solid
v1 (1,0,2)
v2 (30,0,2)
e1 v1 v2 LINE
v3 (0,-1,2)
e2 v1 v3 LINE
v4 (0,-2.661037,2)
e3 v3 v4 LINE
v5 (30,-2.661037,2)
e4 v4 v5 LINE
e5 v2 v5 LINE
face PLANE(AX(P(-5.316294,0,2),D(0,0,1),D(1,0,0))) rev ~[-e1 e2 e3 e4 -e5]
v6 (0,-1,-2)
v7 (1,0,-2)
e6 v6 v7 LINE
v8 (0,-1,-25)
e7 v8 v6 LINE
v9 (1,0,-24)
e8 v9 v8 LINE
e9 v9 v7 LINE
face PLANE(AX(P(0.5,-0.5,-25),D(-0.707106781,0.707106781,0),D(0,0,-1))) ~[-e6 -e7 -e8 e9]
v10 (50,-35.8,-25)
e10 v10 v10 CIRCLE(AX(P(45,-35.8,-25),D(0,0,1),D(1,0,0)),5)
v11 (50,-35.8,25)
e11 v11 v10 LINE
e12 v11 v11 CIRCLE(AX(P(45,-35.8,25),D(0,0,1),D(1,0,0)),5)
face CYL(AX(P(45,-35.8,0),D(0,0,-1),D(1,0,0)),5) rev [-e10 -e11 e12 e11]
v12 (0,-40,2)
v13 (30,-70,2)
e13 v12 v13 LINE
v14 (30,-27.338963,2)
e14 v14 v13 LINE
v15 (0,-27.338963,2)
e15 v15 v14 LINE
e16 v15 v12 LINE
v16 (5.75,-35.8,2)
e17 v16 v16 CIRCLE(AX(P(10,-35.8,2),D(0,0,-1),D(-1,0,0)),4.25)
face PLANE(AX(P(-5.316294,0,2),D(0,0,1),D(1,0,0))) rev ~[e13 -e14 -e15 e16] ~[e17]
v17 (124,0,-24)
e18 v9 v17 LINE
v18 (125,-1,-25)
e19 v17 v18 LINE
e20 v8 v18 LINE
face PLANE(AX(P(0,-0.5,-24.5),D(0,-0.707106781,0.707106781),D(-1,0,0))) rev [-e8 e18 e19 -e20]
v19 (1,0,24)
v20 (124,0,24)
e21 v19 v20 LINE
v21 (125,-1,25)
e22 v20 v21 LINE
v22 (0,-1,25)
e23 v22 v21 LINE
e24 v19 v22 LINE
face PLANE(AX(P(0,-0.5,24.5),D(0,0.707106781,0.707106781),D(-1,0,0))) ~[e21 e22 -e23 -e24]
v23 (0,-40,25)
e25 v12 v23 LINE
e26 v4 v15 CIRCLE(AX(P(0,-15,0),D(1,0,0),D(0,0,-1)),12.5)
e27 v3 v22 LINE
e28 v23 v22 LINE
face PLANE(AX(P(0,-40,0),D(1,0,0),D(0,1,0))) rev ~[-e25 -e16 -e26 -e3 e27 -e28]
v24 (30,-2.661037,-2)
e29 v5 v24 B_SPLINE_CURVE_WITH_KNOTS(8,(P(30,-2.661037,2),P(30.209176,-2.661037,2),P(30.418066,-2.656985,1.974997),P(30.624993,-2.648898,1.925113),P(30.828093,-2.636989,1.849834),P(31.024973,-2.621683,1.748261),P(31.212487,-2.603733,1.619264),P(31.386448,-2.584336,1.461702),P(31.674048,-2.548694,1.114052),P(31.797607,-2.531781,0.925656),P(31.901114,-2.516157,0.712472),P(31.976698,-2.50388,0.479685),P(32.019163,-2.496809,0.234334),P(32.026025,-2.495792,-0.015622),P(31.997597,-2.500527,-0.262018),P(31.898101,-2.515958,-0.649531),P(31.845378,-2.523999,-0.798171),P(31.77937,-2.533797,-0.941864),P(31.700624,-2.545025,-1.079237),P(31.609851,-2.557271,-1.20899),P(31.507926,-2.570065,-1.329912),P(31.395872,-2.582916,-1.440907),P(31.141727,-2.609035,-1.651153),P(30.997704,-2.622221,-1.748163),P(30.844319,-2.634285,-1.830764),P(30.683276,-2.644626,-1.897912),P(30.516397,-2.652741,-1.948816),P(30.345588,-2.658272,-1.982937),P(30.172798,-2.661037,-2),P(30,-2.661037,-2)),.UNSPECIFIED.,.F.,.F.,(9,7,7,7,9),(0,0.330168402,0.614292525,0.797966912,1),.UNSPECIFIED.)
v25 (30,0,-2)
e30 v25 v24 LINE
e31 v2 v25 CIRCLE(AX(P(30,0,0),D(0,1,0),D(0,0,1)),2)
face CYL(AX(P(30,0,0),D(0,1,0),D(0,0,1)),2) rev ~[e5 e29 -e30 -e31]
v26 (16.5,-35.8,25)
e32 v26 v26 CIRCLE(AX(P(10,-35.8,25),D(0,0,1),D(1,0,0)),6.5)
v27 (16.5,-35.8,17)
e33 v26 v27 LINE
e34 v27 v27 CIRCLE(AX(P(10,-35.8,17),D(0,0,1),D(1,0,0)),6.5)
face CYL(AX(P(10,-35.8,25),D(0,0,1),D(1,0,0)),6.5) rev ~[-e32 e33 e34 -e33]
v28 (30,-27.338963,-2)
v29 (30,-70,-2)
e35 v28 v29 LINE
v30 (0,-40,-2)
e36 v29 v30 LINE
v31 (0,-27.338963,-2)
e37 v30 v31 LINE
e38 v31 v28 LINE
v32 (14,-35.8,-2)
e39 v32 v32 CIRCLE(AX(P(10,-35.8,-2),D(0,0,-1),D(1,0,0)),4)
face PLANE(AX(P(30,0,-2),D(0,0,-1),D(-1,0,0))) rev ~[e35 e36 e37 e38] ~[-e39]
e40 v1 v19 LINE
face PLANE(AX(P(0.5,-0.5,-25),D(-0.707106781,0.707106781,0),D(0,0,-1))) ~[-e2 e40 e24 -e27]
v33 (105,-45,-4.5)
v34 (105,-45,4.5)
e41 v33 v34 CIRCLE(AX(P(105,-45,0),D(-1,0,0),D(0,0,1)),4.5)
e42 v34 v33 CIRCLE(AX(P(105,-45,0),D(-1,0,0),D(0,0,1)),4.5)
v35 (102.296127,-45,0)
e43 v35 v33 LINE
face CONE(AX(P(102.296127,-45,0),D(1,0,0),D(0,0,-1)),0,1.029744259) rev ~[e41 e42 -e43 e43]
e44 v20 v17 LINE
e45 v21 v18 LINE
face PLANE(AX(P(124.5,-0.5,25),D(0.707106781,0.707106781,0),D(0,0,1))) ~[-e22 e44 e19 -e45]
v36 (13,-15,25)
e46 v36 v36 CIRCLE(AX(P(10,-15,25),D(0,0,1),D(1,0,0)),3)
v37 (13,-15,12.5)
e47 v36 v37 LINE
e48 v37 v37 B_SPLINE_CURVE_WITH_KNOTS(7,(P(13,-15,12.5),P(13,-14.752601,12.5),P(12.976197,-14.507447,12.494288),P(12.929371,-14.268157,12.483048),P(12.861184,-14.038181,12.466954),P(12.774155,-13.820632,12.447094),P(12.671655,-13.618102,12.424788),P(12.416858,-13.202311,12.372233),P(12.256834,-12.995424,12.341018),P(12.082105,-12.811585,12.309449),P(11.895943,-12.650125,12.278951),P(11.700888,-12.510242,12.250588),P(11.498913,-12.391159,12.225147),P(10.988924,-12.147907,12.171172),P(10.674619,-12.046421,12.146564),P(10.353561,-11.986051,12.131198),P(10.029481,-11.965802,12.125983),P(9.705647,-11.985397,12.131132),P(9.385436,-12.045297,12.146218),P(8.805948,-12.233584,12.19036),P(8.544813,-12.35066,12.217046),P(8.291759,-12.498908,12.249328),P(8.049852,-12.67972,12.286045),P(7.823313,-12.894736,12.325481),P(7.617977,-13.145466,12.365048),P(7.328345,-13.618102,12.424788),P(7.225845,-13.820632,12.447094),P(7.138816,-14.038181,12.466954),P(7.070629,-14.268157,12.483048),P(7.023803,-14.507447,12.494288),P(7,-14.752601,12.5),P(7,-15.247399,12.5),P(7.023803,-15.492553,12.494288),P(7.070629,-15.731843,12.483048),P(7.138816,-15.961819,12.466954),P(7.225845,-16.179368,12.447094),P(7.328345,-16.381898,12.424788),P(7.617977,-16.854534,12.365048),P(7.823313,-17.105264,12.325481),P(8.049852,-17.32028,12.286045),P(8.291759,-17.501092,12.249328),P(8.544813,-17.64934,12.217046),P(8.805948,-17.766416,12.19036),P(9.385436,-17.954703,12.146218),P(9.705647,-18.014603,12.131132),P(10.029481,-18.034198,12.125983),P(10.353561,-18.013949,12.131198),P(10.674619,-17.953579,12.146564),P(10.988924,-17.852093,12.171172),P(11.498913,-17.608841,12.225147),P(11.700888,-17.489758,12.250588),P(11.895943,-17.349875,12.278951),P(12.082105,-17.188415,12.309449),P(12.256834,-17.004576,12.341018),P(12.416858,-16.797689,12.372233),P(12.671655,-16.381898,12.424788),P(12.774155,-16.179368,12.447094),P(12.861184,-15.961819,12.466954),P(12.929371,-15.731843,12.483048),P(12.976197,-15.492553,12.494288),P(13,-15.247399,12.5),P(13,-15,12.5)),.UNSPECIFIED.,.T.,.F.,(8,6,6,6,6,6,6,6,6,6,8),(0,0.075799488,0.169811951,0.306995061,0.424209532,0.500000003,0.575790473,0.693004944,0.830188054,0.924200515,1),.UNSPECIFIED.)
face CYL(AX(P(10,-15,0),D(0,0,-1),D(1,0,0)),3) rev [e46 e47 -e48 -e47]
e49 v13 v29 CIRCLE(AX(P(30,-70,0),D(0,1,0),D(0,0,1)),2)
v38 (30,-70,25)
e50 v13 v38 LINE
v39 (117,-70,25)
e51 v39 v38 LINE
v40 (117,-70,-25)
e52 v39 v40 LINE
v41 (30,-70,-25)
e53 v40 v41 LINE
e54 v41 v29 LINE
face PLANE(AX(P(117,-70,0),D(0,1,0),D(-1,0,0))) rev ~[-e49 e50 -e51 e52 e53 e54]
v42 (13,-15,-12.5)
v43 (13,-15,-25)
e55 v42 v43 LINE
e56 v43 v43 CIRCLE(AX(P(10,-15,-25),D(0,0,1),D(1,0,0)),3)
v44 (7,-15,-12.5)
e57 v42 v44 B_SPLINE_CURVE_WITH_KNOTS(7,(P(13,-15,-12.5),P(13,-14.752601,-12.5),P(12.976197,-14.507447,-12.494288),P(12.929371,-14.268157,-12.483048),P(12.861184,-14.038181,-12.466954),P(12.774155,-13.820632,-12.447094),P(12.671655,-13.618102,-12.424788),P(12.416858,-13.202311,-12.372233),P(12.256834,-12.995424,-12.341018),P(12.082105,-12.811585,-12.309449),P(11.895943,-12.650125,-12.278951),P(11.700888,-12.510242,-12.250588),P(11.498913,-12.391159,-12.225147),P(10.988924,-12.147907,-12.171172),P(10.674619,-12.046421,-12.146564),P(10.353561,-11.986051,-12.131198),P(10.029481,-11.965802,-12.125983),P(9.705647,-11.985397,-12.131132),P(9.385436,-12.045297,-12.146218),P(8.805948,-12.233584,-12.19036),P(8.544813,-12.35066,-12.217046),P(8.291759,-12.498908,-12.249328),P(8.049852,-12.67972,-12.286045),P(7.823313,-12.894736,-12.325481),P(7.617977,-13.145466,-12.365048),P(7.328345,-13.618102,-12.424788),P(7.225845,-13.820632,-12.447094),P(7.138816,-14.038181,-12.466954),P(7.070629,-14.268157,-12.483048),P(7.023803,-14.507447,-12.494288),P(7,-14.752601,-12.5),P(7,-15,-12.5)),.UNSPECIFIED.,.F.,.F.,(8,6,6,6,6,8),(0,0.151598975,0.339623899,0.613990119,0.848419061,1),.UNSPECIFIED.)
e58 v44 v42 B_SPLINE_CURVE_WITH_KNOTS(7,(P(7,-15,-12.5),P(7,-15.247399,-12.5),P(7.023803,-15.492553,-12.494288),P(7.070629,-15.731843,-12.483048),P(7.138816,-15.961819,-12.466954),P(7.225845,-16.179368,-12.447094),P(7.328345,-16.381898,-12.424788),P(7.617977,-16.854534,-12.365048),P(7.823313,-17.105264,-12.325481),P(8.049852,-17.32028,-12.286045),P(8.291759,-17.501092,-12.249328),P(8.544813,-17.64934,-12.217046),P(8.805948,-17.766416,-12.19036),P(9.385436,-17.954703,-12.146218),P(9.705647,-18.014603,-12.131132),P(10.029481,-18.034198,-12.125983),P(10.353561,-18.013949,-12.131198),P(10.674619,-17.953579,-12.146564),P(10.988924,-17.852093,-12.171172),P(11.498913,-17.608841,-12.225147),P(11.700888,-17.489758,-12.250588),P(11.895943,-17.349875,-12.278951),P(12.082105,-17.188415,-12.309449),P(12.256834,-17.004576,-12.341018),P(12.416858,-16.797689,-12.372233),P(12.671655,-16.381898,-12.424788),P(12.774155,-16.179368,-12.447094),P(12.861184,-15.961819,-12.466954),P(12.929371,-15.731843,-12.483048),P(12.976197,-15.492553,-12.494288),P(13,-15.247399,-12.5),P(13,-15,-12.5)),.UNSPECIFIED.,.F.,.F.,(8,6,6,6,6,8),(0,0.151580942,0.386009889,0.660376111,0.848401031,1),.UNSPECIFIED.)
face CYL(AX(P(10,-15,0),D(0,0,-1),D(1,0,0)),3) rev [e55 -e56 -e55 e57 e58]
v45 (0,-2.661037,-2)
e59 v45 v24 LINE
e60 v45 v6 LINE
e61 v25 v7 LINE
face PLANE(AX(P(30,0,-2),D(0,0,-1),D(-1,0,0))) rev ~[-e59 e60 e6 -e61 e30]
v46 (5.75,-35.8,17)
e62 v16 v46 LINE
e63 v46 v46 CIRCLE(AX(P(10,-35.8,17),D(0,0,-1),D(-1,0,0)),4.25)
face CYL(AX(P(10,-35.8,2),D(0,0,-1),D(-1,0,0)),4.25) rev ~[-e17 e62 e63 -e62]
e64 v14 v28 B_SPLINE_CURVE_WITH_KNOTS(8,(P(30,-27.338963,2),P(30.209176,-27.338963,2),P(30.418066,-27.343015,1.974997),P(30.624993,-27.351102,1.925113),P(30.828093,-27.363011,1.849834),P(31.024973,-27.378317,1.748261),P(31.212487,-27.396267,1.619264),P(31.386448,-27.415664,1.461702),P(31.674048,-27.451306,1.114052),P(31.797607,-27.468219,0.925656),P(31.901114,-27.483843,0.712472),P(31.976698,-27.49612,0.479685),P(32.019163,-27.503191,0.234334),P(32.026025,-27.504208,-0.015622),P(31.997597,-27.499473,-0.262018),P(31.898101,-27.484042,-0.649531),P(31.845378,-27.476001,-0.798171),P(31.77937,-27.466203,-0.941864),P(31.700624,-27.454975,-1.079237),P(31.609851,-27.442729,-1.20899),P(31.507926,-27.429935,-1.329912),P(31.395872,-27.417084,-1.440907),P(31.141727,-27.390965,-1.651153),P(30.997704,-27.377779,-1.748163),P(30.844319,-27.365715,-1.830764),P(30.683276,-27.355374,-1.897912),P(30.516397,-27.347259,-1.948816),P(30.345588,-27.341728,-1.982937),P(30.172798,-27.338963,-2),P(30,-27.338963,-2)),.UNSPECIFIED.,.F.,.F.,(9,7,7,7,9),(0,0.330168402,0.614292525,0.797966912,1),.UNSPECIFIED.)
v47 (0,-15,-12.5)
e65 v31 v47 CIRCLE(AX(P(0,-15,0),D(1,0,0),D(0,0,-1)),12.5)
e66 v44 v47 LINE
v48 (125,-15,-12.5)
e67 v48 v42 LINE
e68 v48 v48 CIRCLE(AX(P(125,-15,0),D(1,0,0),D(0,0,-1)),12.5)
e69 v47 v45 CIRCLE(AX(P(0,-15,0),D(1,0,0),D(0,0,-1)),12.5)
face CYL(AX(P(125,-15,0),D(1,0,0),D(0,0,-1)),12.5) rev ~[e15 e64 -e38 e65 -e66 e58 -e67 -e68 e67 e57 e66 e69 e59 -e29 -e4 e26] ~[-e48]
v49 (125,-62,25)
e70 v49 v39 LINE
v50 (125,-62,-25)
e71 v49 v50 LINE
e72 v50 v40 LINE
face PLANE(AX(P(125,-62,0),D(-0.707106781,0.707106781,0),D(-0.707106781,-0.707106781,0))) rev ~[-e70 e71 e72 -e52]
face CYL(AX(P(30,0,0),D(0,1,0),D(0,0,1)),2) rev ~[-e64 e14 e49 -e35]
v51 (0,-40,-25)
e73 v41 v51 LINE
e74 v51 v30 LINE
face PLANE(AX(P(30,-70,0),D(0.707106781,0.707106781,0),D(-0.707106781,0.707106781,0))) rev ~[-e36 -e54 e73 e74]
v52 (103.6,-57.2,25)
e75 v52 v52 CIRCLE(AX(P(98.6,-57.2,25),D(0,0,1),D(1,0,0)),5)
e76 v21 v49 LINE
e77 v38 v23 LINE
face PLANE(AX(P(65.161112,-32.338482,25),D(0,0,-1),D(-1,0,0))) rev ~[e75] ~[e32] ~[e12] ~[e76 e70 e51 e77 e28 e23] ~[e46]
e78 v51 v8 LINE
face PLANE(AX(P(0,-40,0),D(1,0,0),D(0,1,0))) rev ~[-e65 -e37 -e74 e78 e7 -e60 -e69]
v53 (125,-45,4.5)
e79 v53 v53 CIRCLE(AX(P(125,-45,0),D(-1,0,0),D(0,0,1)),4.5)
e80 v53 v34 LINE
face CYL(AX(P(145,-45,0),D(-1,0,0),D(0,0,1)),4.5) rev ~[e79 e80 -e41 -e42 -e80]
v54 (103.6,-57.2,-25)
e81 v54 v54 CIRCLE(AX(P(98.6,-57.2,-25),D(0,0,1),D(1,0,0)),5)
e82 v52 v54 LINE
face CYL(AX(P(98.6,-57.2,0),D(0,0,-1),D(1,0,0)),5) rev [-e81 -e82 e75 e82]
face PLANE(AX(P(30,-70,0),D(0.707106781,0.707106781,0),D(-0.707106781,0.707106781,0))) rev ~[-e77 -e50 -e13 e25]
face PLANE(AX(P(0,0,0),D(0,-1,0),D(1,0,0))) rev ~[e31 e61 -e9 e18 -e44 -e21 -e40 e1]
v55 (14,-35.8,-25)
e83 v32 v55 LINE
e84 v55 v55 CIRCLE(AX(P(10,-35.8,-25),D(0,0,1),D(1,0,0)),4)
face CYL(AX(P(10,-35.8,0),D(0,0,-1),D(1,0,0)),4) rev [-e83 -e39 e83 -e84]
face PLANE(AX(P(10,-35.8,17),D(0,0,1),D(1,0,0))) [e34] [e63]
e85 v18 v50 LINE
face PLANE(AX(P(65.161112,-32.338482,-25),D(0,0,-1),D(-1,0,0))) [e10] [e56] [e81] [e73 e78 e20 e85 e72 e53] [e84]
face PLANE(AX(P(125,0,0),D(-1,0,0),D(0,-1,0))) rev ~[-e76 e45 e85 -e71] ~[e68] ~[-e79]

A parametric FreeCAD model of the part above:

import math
import FreeCAD as App
import Part
import Sketcher

V = App.Vector
Q = App.Units.Quantity


def edges_at(feature, points):
    """Names of the edges that pass closest to the given points."""
    edges = feature.Shape.Edges
    near = lambda p: min(range(len(edges)), key=lambda i: edges[i].distToShape(Part.Vertex(*p))[0])
    return sorted({f"Edge{near(p) + 1}" for p in points})

doc = App.newDocument("Part")
body = doc.addObject("PartDesign::Body", "Body")

sketch1 = body.newObject("Sketcher::SketchObject", "Sketch")
sketch1.AttachmentSupport = (doc.getObject("XY_Plane"), [""])
sketch1.MapMode = "FlatFace"
sketch1.addGeometry([
    Part.LineSegment(V(125, 0, 0), V(0, 0, 0)),
    Part.LineSegment(V(0, 0, 0), V(0, -40, 0)),
    Part.LineSegment(V(0, -40, 0), V(30, -70, 0)),
    Part.LineSegment(V(30, -70, 0), V(117, -70, 0)),
    Part.LineSegment(V(117, -70, 0), V(125, -62, 0)),
    Part.LineSegment(V(125, -62, 0), V(125, 0, 0)),
    Part.Circle(V(98.6, -57.2, 0), V(0, 0, 1), 5),
    Part.Circle(V(45, -35.8, 0), V(0, 0, 1), 5),
    Part.Circle(V(10, -35.8, 0), V(0, 0, 1), 4),
    Part.Circle(V(10, -15, 0), V(0, 0, 1), 3),
], False)
sketch1.addConstraint([
    Sketcher.Constraint("Coincident", 0, 2, 1, 1),
    Sketcher.Constraint("Coincident", 1, 2, 2, 1),
    Sketcher.Constraint("Coincident", 2, 2, 3, 1),
    Sketcher.Constraint("Coincident", 3, 2, 4, 1),
    Sketcher.Constraint("Coincident", 4, 2, 5, 1),
    Sketcher.Constraint("Coincident", 5, 2, 0, 1),
    Sketcher.Constraint("Horizontal", 0),
    Sketcher.Constraint("Vertical", 1),
    Sketcher.Constraint("Horizontal", 3),
    Sketcher.Constraint("Vertical", 5),
    Sketcher.Constraint("Coincident", 0, 2, -1, 1),
    Sketcher.Constraint("Equal", 6, 7),
    Sketcher.Constraint("Perpendicular", 2, 4),
    Sketcher.Constraint("Horizontal", 7, 3, 8, 3),
    Sketcher.Constraint("Vertical", 8, 3, 9, 3),
    Sketcher.Constraint("Diameter", 6, Q("10 mm")),
    Sketcher.Constraint("Diameter", 8, Q("8 mm")),
    Sketcher.Constraint("Diameter", 9, Q("6 mm")),
    Sketcher.Constraint("DistanceX", 0, 2, 0, 1, Q("125 mm")),
    Sketcher.Constraint("DistanceX", 3, 1, 3, 2, Q("87 mm")),
    Sketcher.Constraint("DistanceY", 1, 2, 1, 1, Q("40 mm")),
    Sketcher.Constraint("DistanceY", 5, 1, 5, 2, Q("62 mm")),
    Sketcher.Constraint("Angle", 2, Q("-45 deg")),
    Sketcher.Constraint("DistanceX", -1, 1, 7, 3, Q("45 mm")),
    Sketcher.Constraint("DistanceX", -1, 1, 8, 3, Q("10 mm")),
    Sketcher.Constraint("DistanceY", 9, 3, -1, 1, Q("15 mm")),
    Sketcher.Constraint("DistanceX", -1, 1, 6, 3, Q("98.6 mm")),
    Sketcher.Constraint("DistanceY", 6, 3, -1, 1, Q("57.2 mm")),
    Sketcher.Constraint("DistanceY", 7, 3, -1, 1, Q("35.8 mm")),
])
pad1 = body.newObject("PartDesign::Pad", "Pad")
pad1.Profile = sketch1
pad1.Length = 50
pad1.Midplane = True
doc.recompute()

chamfer = body.newObject("PartDesign::Chamfer", "Chamfer")
chamfer.Base = (pad1, edges_at(pad1, [
    (0, 0, 0),
    (125, 0, 0),
    (62.5, 0, 25),
    (62.5, 0, -25),
]))
chamfer.Size = 1

sketch2 = body.newObject("Sketcher::SketchObject", "Sketch001")
sketch2.AttachmentSupport = (doc.getObject("XZ_Plane"), [""])
sketch2.MapMode = "FlatFace"
sketch2.addGeometry([
    Part.LineSegment(V(30, -2, 0), V(-5.316294, -2, 0)),
    Part.LineSegment(V(-5.316294, -2, 0), V(-5.316294, 2, 0)),
    Part.LineSegment(V(-5.316294, 2, 0), V(30, 2, 0)),
    Part.ArcOfCircle(Part.Circle(V(30, 0, 0), V(0, 0, 1), 2), math.radians(-90), math.radians(90)),
], False)
sketch2.addConstraint([
    Sketcher.Constraint("Coincident", 0, 2, 1, 1),
    Sketcher.Constraint("Coincident", 1, 2, 2, 1),
    Sketcher.Constraint("Tangent", 2, 2, 3, 2),
    Sketcher.Constraint("Tangent", 3, 1, 0, 1),
    Sketcher.Constraint("Horizontal", 0),
    Sketcher.Constraint("Vertical", 1),
    Sketcher.Constraint("Horizontal", 2),
    Sketcher.Constraint("PointOnObject", 3, 3, -1),
    Sketcher.Constraint("Radius", 3, Q("2 mm")),
    Sketcher.Constraint("DistanceX", -1, 1, 3, 3, Q("30 mm")),
    Sketcher.Constraint("DistanceX", 0, 2, 0, 1, Q("35.316294 mm")),
])
pocket1 = body.newObject("PartDesign::Pocket", "Pocket")
pocket1.Profile = sketch2
pocket1.Length = 94.3
pocket1.Reversed = True

sketch3 = body.newObject("Sketcher::SketchObject", "Sketch002")
sketch3.AttachmentSupport = (doc.getObject("XY_Plane"), [""])
sketch3.MapMode = "FlatFace"
sketch3.AttachmentOffset = App.Placement(V(0, 0, 2), App.Rotation())
sketch3.addGeometry(Part.Circle(V(10, -35.8, 0), V(0, 0, 1), 4.25), False)
sketch3.addConstraint([
    Sketcher.Constraint("Diameter", 0, Q("8.5 mm")),
    Sketcher.Constraint("DistanceX", -1, 1, 0, 3, Q("10 mm")),
    Sketcher.Constraint("DistanceY", 0, 3, -1, 1, Q("35.8 mm")),
])
pocket2 = body.newObject("PartDesign::Pocket", "Pocket001")
pocket2.Profile = sketch3
pocket2.Length = 94.3
pocket2.Reversed = True

sketch4 = body.newObject("Sketcher::SketchObject", "Sketch003")
sketch4.AttachmentSupport = (doc.getObject("XY_Plane"), [""])
sketch4.MapMode = "FlatFace"
sketch4.AttachmentOffset = App.Placement(V(0, 0, 25), App.Rotation())
sketch4.addGeometry(Part.Circle(V(10, -35.8, 0), V(0, 0, 1), 6.5), False)
sketch4.addConstraint([
    Sketcher.Constraint("Diameter", 0, Q("13 mm")),
    Sketcher.Constraint("DistanceX", -1, 1, 0, 3, Q("10 mm")),
    Sketcher.Constraint("DistanceY", 0, 3, -1, 1, Q("35.8 mm")),
])
pocket3 = body.newObject("PartDesign::Pocket", "Pocket002")
pocket3.Profile = sketch4
pocket3.Length = 8

sketch5 = body.newObject("Sketcher::SketchObject", "Sketch004")
sketch5.AttachmentSupport = (doc.getObject("YZ_Plane"), [""])
sketch5.MapMode = "FlatFace"
sketch5.AttachmentOffset = App.Placement(V(0, 0, 125), App.Rotation())
sketch5.addGeometry(Part.Circle(V(-15, 0, 0), V(0, 0, 1), 12.5), False)
sketch5.addConstraint([
    Sketcher.Constraint("PointOnObject", 0, 3, -1),
    Sketcher.Constraint("Diameter", 0, Q("25 mm")),
    Sketcher.Constraint("DistanceX", 0, 3, -1, 1, Q("15 mm")),
])
pocket4 = body.newObject("PartDesign::Pocket", "Pocket003")
pocket4.Profile = sketch5
pocket4.Length = 141.5

sketch6 = body.newObject("Sketcher::SketchObject", "Sketch005")
sketch6.AttachmentSupport = (doc.getObject("YZ_Plane"), [""])
sketch6.MapMode = "FlatFace"
sketch6.AttachmentOffset = App.Placement(V(0, 0, 125), App.Rotation())
sketch6.addGeometry(Part.Circle(V(-45, 0, 0), V(0, 0, 1), 4.5), False)
sketch6.addConstraint([
    Sketcher.Constraint("PointOnObject", 0, 3, -1),
    Sketcher.Constraint("Diameter", 0, Q("9 mm")),
    Sketcher.Constraint("DistanceX", 0, 3, -1, 1, Q("45 mm")),
])
doc.recompute()
hole = body.newObject("PartDesign::Hole", "Hole")
hole.Profile = sketch6
hole.ThreadType = "None"
hole.Diameter = 9
hole.DepthType = "Dimension"
hole.Depth = 20
hole.DrillPoint = "Angled"
hole.DrillPointAngle = 118

doc.recompute()
